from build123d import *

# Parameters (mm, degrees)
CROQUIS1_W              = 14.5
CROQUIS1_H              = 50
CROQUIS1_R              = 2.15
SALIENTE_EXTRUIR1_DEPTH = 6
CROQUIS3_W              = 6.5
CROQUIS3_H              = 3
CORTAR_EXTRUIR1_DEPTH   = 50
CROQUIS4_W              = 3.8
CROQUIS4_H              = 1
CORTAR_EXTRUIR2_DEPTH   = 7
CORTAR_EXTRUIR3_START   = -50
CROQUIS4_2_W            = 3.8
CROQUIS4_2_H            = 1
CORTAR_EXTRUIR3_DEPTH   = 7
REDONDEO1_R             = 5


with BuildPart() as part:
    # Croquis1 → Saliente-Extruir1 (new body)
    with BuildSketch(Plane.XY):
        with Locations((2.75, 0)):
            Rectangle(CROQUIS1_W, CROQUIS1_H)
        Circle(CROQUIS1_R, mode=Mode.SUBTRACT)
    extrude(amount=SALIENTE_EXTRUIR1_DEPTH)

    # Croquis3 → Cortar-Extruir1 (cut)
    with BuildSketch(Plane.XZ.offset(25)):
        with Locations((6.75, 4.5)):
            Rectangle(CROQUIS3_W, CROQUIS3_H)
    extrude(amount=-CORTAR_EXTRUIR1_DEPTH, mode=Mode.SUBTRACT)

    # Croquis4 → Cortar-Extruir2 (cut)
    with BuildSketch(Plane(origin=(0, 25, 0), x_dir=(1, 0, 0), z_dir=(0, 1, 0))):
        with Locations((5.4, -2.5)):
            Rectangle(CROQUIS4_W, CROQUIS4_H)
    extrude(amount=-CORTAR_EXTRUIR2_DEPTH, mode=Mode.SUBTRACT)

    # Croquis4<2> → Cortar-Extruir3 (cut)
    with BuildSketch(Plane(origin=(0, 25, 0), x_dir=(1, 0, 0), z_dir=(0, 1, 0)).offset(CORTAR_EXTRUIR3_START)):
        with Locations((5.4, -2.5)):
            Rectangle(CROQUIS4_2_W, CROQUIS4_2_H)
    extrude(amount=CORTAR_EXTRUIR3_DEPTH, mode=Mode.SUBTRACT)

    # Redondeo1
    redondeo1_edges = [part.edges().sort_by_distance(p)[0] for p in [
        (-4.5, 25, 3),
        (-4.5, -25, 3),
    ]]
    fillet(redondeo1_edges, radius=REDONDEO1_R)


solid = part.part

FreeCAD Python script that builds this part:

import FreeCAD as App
import Part
import Sketcher

V = App.Vector
Q = App.Units.Quantity


def edges_at(feature, points):
    """Names of the edges that pass closest to the given points."""
    edges = feature.Shape.Edges
    near = lambda p: min(range(len(edges)), key=lambda i: edges[i].distToShape(Part.Vertex(*p))[0])
    return sorted({f"Edge{near(p) + 1}" for p in points})

doc = App.newDocument("Part")
body = doc.addObject("PartDesign::Body", "Body")

# Sketch on XY plane
sketch1 = body.newObject("Sketcher::SketchObject", "Sketch")
sketch1.AttachmentSupport = (doc.getObject("XY_Plane"), [""])
sketch1.MapMode = "FlatFace"
sketch1.addGeometry([
    Part.LineSegment(V(-4.5, 25, 0), V(-4.5, -25, 0)),  # 0
    Part.LineSegment(V(-4.5, -25, 0), V(10, -25, 0)),  # 1
    Part.LineSegment(V(10, -25, 0), V(10, 25, 0)),  # 2
    Part.LineSegment(V(10, 25, 0), V(-4.5, 25, 0)),  # 3
    Part.Circle(V(0, 0, 0), V(0, 0, 1), 2.1),  # 4
], False)
sketch1.addConstraint([
    Sketcher.Constraint("Coincident", 0, 2, 1, 1),
    Sketcher.Constraint("Coincident", 1, 2, 2, 1),
    Sketcher.Constraint("Coincident", 2, 2, 3, 1),
    Sketcher.Constraint("Coincident", 3, 2, 0, 1),
    Sketcher.Constraint("Vertical", 0),
    Sketcher.Constraint("Horizontal", 1),
    Sketcher.Constraint("Vertical", 2),
    Sketcher.Constraint("Horizontal", 3),
    Sketcher.Constraint("Coincident", 4, 3, -1, 1),
    Sketcher.Constraint("Diameter", 4, Q("4.3 mm")),
    Sketcher.Constraint("DistanceY", 0, 2, 0, 1, Q("50 mm")),
    Sketcher.Constraint("DistanceX", 1, 1, 1, 2, Q("14.5 mm")),
    Sketcher.Constraint("DistanceY", 0, 2, -1, 1, Q("25 mm")),
    Sketcher.Constraint("DistanceX", -1, 1, 1, 2, Q("10 mm")),
])
pad1 = body.newObject("PartDesign::Pad", "Pad")
pad1.Profile = sketch1
pad1.Length = 6

# Sketch on XZ plane
sketch2 = body.newObject("Sketcher::SketchObject", "Sketch001")
sketch2.AttachmentSupport = (doc.getObject("XZ_Plane"), [""])
sketch2.MapMode = "FlatFace"
sketch2.AttachmentOffset = App.Placement(V(0, 0, 25), App.Rotation())
sketch2.addGeometry([
    Part.LineSegment(V(3.5, 6, 0), V(3.5, 3, 0)),
    Part.LineSegment(V(3.5, 3, 0), V(10, 3, 0)),
    Part.LineSegment(V(10, 3, 0), V(10, 6, 0)),
    Part.LineSegment(V(10, 6, 0), V(3.5, 6, 0)),
], False)
sketch2.addConstraint([
    Sketcher.Constraint("Coincident", 0, 2, 1, 1),
    Sketcher.Constraint("Coincident", 1, 2, 2, 1),
    Sketcher.Constraint("Coincident", 2, 2, 3, 1),
    Sketcher.Constraint("Coincident", 3, 2, 0, 1),
    Sketcher.Constraint("Vertical", 0),
    Sketcher.Constraint("Horizontal", 1),
    Sketcher.Constraint("Vertical", 2),
    Sketcher.Constraint("Horizontal", 3),
    Sketcher.Constraint("DistanceY", 0, 2, 0, 1, Q("3 mm")),
    Sketcher.Constraint("DistanceX", 1, 1, 1, 2, Q("6.5 mm")),
    Sketcher.Constraint("DistanceY", -1, 1, 0, 2, Q("3 mm")),
    Sketcher.Constraint("DistanceX", -1, 1, 1, 2, Q("10 mm")),
])
pocket1 = body.newObject("PartDesign::Pocket", "Pocket")
pocket1.Profile = sketch2
pocket1.Length = 50

# Sketch on XZ plane
sketch3 = body.newObject("Sketcher::SketchObject", "Sketch002")
sketch3.AttachmentSupport = (doc.getObject("XZ_Plane"), [""])
sketch3.MapMode = "FlatFace"
sketch3.AttachmentOffset = App.Placement(V(0, 0, -25), App.Rotation())
sketch3.addGeometry([
    Part.LineSegment(V(3.5, 2, 0), V(3.5, 3, 0)),
    Part.LineSegment(V(3.5, 3, 0), V(7.3, 3, 0)),
    Part.LineSegment(V(7.3, 3, 0), V(7.3, 2, 0)),
    Part.LineSegment(V(7.3, 2, 0), V(3.5, 2, 0)),
], False)
sketch3.addConstraint([
    Sketcher.Constraint("Coincident", 0, 2, 1, 1),
    Sketcher.Constraint("Coincident", 1, 2, 2, 1),
    Sketcher.Constraint("Coincident", 2, 2, 3, 1),
    Sketcher.Constraint("Coincident", 3, 2, 0, 1),
    Sketcher.Constraint("Vertical", 0),
    Sketcher.Constraint("Horizontal", 1),
    Sketcher.Constraint("Vertical", 2),
    Sketcher.Constraint("Horizontal", 3),
    Sketcher.Constraint("DistanceY", 0, 1, 0, 2, Q("1 mm")),
    Sketcher.Constraint("DistanceX", 1, 1, 1, 2, Q("3.8 mm")),
    Sketcher.Constraint("DistanceY", -1, 1, 0, 2, Q("3 mm")),
    Sketcher.Constraint("DistanceX", -1, 1, 0, 2, Q("3.5 mm")),
])
pocket2 = body.newObject("PartDesign::Pocket", "Pocket001")
pocket2.Profile = sketch3
pocket2.Length = 7
pocket2.Reversed = True

# Sketch on XZ plane
sketch4 = body.newObject("Sketcher::SketchObject", "Sketch003")
sketch4.AttachmentSupport = (doc.getObject("XZ_Plane"), [""])
sketch4.MapMode = "FlatFace"
sketch4.AttachmentOffset = App.Placement(V(0, 0, 25), App.Rotation())
sketch4.addGeometry([
    Part.LineSegment(V(3.5, 2, 0), V(3.5, 3, 0)),
    Part.LineSegment(V(3.5, 3, 0), V(7.3, 3, 0)),
    Part.LineSegment(V(7.3, 3, 0), V(7.3, 2, 0)),
    Part.LineSegment(V(7.3, 2, 0), V(3.5, 2, 0)),
], False)
sketch4.addConstraint([
    Sketcher.Constraint("Coincident", 0, 2, 1, 1),
    Sketcher.Constraint("Coincident", 1, 2, 2, 1),
    Sketcher.Constraint("Coincident", 2, 2, 3, 1),
    Sketcher.Constraint("Coincident", 3, 2, 0, 1),
    Sketcher.Constraint("Vertical", 0),
    Sketcher.Constraint("Horizontal", 1),
    Sketcher.Constraint("Vertical", 2),
    Sketcher.Constraint("Horizontal", 3),
    Sketcher.Constraint("DistanceY", 0, 1, 0, 2, Q("1 mm")),
    Sketcher.Constraint("DistanceX", 1, 1, 1, 2, Q("3.8 mm")),
    Sketcher.Constraint("DistanceY", -1, 1, 0, 2, Q("3 mm")),
    Sketcher.Constraint("DistanceX", -1, 1, 0, 2, Q("3.5 mm")),
])
pocket3 = body.newObject("PartDesign::Pocket", "Pocket002")
pocket3.Profile = sketch4
pocket3.Length = 7
doc.recompute()

fillet = body.newObject("PartDesign::Fillet", "Fillet")
fillet.Base = (pocket3, edges_at(pocket3, [(-4.5, 25, 3), (-4.5, -25, 3)]))
fillet.Radius = 5

doc.recompute()
